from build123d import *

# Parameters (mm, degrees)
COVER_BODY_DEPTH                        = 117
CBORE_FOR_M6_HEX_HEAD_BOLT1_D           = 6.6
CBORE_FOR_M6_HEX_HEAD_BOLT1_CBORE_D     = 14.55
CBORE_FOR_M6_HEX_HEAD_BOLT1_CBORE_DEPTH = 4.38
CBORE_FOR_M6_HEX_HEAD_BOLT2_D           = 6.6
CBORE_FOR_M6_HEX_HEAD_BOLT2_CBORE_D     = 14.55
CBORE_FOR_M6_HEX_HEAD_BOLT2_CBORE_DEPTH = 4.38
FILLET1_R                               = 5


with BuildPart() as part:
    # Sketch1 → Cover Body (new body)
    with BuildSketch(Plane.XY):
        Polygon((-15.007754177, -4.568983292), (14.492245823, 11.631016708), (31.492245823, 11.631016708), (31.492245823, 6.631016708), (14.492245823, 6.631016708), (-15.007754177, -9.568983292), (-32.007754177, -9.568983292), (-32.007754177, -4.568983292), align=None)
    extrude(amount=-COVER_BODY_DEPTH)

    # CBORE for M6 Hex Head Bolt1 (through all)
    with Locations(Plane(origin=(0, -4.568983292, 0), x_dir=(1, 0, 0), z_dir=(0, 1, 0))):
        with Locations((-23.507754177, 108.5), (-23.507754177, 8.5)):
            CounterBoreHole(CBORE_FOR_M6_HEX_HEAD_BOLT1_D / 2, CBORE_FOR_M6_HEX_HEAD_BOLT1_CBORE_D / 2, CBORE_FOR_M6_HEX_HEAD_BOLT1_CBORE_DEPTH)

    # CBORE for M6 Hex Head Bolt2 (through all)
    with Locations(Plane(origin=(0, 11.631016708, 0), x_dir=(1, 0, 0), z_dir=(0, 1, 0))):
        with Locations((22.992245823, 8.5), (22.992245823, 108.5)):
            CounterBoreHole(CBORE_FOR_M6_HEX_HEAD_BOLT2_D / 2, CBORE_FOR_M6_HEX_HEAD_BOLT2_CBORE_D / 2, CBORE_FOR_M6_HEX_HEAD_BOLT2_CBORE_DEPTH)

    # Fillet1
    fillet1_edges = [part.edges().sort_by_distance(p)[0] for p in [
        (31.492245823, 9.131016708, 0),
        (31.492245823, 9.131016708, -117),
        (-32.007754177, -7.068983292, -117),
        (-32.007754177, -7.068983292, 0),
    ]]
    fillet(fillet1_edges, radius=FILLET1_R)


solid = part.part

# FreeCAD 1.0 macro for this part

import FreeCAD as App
import Part
import Sketcher
Q = App.Units.Quantity


def edges_at(feature, points):
    """Names of the edges that pass closest to the given points."""
    edges = feature.Shape.Edges
    near = lambda p: min(range(len(edges)), key=lambda i: edges[i].distToShape(Part.Vertex(*p))[0])
    return sorted({f"Edge{near(p) + 1}" for p in points})

doc = App.newDocument("Part")
body = doc.addObject("PartDesign::Body", "Body")

sketch1 = doc.addObject("Sketcher::SketchObject", "Sketch")
body.addObject(sketch1)
sketch1.AttachmentSupport = (doc.XY_Plane, [""])
sketch1.MapMode = "FlatFace"
sketch1.addGeometry([
    Part.LineSegment(App.Vector(14, 12, 0), App.Vector(-15, -5, 0)),
    Part.LineSegment(App.Vector(-15, -5, 0), App.Vector(-32, -5, 0)),
    Part.LineSegment(App.Vector(-32, -5, 0), App.Vector(-32, -10, 0)),
    Part.LineSegment(App.Vector(-32, -10, 0), App.Vector(-15, -10, 0)),
    Part.LineSegment(App.Vector(-15, -10, 0), App.Vector(14, 7, 0)),
    Part.LineSegment(App.Vector(14, 7, 0), App.Vector(31, 7, 0)),
    Part.LineSegment(App.Vector(31, 7, 0), App.Vector(31, 12, 0)),
    Part.LineSegment(App.Vector(31, 12, 0), App.Vector(14, 12, 0)),
], False)
sketch1.addConstraint([
    Sketcher.Constraint("Coincident", 0, 2, 1, 1),
    Sketcher.Constraint("Coincident", 1, 2, 2, 1),
    Sketcher.Constraint("Coincident", 2, 2, 3, 1),
    Sketcher.Constraint("Coincident", 3, 2, 4, 1),
    Sketcher.Constraint("Coincident", 4, 2, 5, 1),
    Sketcher.Constraint("Coincident", 5, 2, 6, 1),
    Sketcher.Constraint("Coincident", 6, 2, 7, 1),
    Sketcher.Constraint("Coincident", 7, 2, 0, 1),
    Sketcher.Constraint("Horizontal", 1),
    Sketcher.Constraint("Vertical", 2),
    Sketcher.Constraint("Horizontal", 3),
    Sketcher.Constraint("Horizontal", 5),
    Sketcher.Constraint("Vertical", 6),
    Sketcher.Constraint("Horizontal", 7),
    Sketcher.Constraint("Parallel", 0, 4),
    Sketcher.Constraint("Vertical", 0, 2, 3, 2),
    Sketcher.Constraint("Vertical", 4, 2, 7, 2),
    Sketcher.Constraint("Equal", 3, 5),
    Sketcher.Constraint("DistanceX", 1, 2, 1, 1, Q("17 mm")),
    Sketcher.Constraint("DistanceY", 2, 2, 2, 1, Q("5 mm")),
    Sketcher.Constraint("DistanceX", 0, 2, 4, 2, Q("29.5 mm")),
    Sketcher.Constraint("DistanceY", 0, 2, 4, 2, Q("11.2 mm")),
    Sketcher.Constraint("DistanceX", 0, 2, -1, 1, Q("15.007754 mm")),
    Sketcher.Constraint("DistanceY", 0, 2, -1, 1, Q("4.568983 mm")),
])
pad1 = doc.addObject("PartDesign::Pad", "Pad")
body.addObject(pad1)
pad1.Profile = sketch1
pad1.Length = 117
pad1.Reversed = True

sketch2 = doc.addObject("Sketcher::SketchObject", "Sketch001")
body.addObject(sketch2)
sketch2.AttachmentSupport = (doc.XZ_Plane, [""])
sketch2.MapMode = "FlatFace"
sketch2.AttachmentOffset = App.Placement(App.Vector(0, 0, 4.568983), App.Rotation())
sketch2.addGeometry([
    Part.Circle(App.Vector(-23.5, -108.5, 0), App.Vector(0, 0, 1), 3.3),
    Part.Circle(App.Vector(-23.5, -8.5, 0), App.Vector(0, 0, 1), 3.3),
], False)
sketch2.addConstraint([
    Sketcher.Constraint("Equal", 0, 1),
    Sketcher.Constraint("Vertical", 0, 3, 1, 3),
    Sketcher.Constraint("Diameter", 0, Q("6.6 mm")),
    Sketcher.Constraint("DistanceY", 0, 3, 1, 3, Q("100 mm")),
    Sketcher.Constraint("DistanceY", 0, 3, -1, 1, Q("108.5 mm")),
    Sketcher.Constraint("DistanceX", 0, 3, -1, 1, Q("23.507754 mm")),
])
doc.recompute()
hole = doc.addObject("PartDesign::Hole", "Hole")
body.addObject(hole)
hole.Profile = sketch2
hole.ThreadType = "None"
hole.Diameter = 6.6
hole.DepthType = "ThroughAll"
hole.HoleCutType = "Counterbore"
hole.HoleCutDiameter = 14.55
hole.HoleCutDepth = 4.38
hole.Reversed = True

sketch3 = doc.addObject("Sketcher::SketchObject", "Sketch002")
body.addObject(sketch3)
sketch3.AttachmentSupport = (doc.XZ_Plane, [""])
sketch3.MapMode = "FlatFace"
sketch3.AttachmentOffset = App.Placement(App.Vector(0, 0, -11.631017), App.Rotation())
sketch3.addGeometry([
    Part.Circle(App.Vector(23, -8.5, 0), App.Vector(0, 0, 1), 3.3),
    Part.Circle(App.Vector(23, -108.5, 0), App.Vector(0, 0, 1), 3.3),
], False)
sketch3.addConstraint([
    Sketcher.Constraint("Equal", 0, 1),
    Sketcher.Constraint("Vertical", 0, 3, 1, 3),
    Sketcher.Constraint("Diameter", 0, Q("6.6 mm")),
    Sketcher.Constraint("DistanceY", 1, 3, 0, 3, Q("100 mm")),
    Sketcher.Constraint("DistanceY", 0, 3, -1, 1, Q("8.5 mm")),
    Sketcher.Constraint("DistanceX", -1, 1, 0, 3, Q("22.992246 mm")),
])
doc.recompute()
hole2 = doc.addObject("PartDesign::Hole", "Hole001")
body.addObject(hole2)
hole2.Profile = sketch3
hole2.ThreadType = "None"
hole2.Diameter = 6.6
hole2.DepthType = "ThroughAll"
hole2.HoleCutType = "Counterbore"
hole2.HoleCutDiameter = 14.55
hole2.HoleCutDepth = 4.38
hole2.Reversed = True
doc.recompute()

fillet = doc.addObject("PartDesign::Fillet", "Fillet")
body.addObject(fillet)
fillet.Base = (hole2, edges_at(hole2, [
    (31.492, 9.131, 0),
    (31.492, 9.131, -117),
    (-32.008, -7.069, -117),
    (-32.008, -7.069, 0),
]))
fillet.Radius = 5

doc.recompute()
